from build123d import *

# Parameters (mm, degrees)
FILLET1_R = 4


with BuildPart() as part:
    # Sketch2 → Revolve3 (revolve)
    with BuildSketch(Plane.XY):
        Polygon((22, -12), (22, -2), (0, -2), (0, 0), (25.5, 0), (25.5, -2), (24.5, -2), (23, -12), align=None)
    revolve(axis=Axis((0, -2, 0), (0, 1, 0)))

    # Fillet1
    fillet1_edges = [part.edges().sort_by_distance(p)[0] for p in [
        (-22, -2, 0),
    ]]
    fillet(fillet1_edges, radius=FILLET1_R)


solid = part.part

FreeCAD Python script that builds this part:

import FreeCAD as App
import Part
import Sketcher


def edges_at(feature, points):
    """Names of the edges that pass closest to the given points."""
    edges = feature.Shape.Edges
    near = lambda p: min(range(len(edges)), key=lambda i: edges[i].distToShape(Part.Vertex(*p))[0])
    return sorted({f"Edge{near(p) + 1}" for p in points})


def add_polygon(sketch, points):
    """Adds a closed chain of lines whose ends are joined by coincident constraints."""
    first, n = sketch.GeometryCount, len(points)
    for a, b in zip(points, points[1:] + points[:1]):
        sketch.addGeometry(Part.LineSegment(App.Vector(*a, 0), App.Vector(*b, 0)), False)
    for i in range(n):
        sketch.addConstraint(Sketcher.Constraint("Coincident", first + i, 2, first + (i + 1) % n, 1))

doc = App.newDocument("Part")
body = doc.addObject("PartDesign::Body", "Body")

# Sketch on XY plane
sketch1 = body.newObject("Sketcher::SketchObject", "Sketch")
sketch1.AttachmentSupport = (doc.getObject("XY_Plane"), [""])
sketch1.MapMode = "FlatFace"
add_polygon(sketch1, [(22, -2), (22, -12), (23, -12), (24.5, -2), (25.5, -2), (25.5, 0), (0, 0), (0, -2)])  # lines 0-7
sketch1.addConstraint(Sketcher.Constraint("Vertical", 0))
sketch1.addConstraint(Sketcher.Constraint("Horizontal", 1))
sketch1.addConstraint(Sketcher.Constraint("Horizontal", 3))
sketch1.addConstraint(Sketcher.Constraint("Vertical", 4))
sketch1.addConstraint(Sketcher.Constraint("Horizontal", 5))
sketch1.addConstraint(Sketcher.Constraint("Vertical", 6))
sketch1.addConstraint(Sketcher.Constraint("Horizontal", 7))
sketch1.addConstraint(Sketcher.Constraint("Coincident", 5, 2, -1, 1))
sketch1.addConstraint(Sketcher.Constraint("Horizontal", 3, 2, 6, 2))
sketch1.addConstraint(Sketcher.Constraint("Equal", 1, 3))
sketch1.addConstraint(Sketcher.Constraint("DistanceX", 1, 1, 1, 2, 1.0))
sketch1.addConstraint(Sketcher.Constraint("DistanceX", 7, 1, 7, 2, 22.0))
sketch1.addConstraint(Sketcher.Constraint("DistanceY", 0, 2, 0, 1, 10.0))
sketch1.addConstraint(Sketcher.Constraint("DistanceY", 4, 1, 4, 2, 2.0))
sketch1.addConstraint(Sketcher.Constraint("DistanceX", 5, 2, 5, 1, 25.5))
revolution = body.newObject("PartDesign::Revolution", "Revolution")
revolution.Profile = sketch1
revolution.ReferenceAxis = (sketch1, ["V_Axis"])
revolution.Angle = 360
doc.recompute()

fillet = body.newObject("PartDesign::Fillet", "Fillet")
fillet.Base = (revolution, edges_at(revolution, [(-22, -2, 0)]))
fillet.Radius = 4

doc.recompute()
